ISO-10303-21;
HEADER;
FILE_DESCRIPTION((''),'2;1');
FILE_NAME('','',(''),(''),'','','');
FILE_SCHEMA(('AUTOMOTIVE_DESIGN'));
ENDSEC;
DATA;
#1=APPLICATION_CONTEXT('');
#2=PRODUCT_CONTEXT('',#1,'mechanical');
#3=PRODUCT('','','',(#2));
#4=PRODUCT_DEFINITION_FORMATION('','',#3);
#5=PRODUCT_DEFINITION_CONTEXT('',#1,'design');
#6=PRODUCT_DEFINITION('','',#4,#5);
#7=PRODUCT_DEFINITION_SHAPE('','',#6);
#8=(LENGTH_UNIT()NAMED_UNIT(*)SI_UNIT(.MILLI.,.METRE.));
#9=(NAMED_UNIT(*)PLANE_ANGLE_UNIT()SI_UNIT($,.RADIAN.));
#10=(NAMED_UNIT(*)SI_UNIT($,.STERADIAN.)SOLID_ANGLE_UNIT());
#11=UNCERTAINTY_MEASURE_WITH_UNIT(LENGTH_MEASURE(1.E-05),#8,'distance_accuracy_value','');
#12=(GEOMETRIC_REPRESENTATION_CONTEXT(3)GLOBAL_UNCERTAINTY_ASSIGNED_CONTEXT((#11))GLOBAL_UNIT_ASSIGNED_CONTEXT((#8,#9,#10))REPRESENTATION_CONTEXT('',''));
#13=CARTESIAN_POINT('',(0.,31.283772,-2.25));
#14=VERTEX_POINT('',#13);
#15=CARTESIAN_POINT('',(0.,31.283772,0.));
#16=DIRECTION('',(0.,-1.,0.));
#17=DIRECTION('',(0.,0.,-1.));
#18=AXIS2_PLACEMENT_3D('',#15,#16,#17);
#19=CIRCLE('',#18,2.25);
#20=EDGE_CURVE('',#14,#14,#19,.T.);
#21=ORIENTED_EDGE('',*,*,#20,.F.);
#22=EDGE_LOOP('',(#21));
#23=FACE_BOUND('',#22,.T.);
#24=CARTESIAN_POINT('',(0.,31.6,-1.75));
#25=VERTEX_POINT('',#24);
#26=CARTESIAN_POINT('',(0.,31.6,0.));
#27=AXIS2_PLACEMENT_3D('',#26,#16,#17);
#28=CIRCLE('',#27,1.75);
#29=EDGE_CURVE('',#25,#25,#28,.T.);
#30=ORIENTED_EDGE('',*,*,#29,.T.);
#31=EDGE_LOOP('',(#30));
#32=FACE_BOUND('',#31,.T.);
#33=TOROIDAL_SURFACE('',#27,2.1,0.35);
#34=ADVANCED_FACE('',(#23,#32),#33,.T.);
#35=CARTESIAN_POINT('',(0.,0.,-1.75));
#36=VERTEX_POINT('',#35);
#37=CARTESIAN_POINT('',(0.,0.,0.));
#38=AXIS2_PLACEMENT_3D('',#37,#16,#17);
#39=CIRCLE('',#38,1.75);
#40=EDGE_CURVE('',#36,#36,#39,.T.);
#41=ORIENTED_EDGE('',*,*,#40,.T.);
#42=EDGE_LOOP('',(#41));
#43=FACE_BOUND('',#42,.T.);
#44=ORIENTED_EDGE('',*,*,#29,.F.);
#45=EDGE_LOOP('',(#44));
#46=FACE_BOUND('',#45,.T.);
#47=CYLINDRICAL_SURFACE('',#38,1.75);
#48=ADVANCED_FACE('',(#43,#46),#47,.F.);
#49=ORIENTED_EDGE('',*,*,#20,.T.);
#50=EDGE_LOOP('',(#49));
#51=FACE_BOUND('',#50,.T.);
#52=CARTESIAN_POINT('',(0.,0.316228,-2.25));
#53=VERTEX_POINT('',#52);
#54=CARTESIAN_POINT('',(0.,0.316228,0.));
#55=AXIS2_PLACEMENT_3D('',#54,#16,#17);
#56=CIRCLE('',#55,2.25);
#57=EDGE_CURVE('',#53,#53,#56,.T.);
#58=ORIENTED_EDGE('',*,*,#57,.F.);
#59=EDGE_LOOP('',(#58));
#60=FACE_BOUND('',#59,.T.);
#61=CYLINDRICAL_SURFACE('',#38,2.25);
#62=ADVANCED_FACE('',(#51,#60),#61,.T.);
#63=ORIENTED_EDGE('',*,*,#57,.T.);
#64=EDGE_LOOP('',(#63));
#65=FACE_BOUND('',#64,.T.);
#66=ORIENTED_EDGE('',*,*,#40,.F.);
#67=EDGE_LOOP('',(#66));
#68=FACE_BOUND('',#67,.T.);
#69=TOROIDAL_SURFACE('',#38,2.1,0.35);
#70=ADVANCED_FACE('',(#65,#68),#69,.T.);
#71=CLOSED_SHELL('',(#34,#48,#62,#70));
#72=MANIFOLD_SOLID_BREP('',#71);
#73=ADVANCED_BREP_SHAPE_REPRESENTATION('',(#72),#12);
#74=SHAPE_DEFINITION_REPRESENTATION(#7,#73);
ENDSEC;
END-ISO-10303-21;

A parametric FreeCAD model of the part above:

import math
import FreeCAD as App
import Part
import Sketcher
from FreeCAD import Vector

doc = App.newDocument("Part")
body = doc.addObject("PartDesign::Body", "Body")

sketch1 = body.newObject("Sketcher::SketchObject", "Sketch")
sketch1.AttachmentSupport = (doc.getObject("XY_Plane"), [""])
sketch1.MapMode = "FlatFace"
sketch1.addGeometry(Part.LineSegment(Vector(2.25, 0.32, 0), Vector(2.25, 31.28, 0)), False)
sketch1.addGeometry(Part.ArcOfCircle(Part.Circle(Vector(2.1, 31.6, 0), Vector(0, 0, 1), 0.35), math.radians(-65), math.radians(0)), False)
sketch1.addGeometry(Part.ArcOfCircle(Part.Circle(Vector(2.1, 31.6, 0), Vector(0, 0, 1), 0.35), math.radians(0), math.radians(180)), False)
sketch1.addGeometry(Part.LineSegment(Vector(1.75, 31.6, 0), Vector(1.75, 0, 0)), False)
sketch1.addGeometry(Part.ArcOfCircle(Part.Circle(Vector(2.1, 0, 0), Vector(0, 0, 1), 0.35), math.radians(180), math.radians(360)), False)
sketch1.addGeometry(Part.ArcOfCircle(Part.Circle(Vector(2.1, 0, 0), Vector(0, 0, 1), 0.35), math.radians(0), math.radians(65)), False)
sketch1.addConstraint(Sketcher.Constraint("Coincident", 0, 2, 1, 1))
sketch1.addConstraint(Sketcher.Constraint("Tangent", 1, 2, 2, 1))
sketch1.addConstraint(Sketcher.Constraint("Tangent", 2, 2, 3, 1))
sketch1.addConstraint(Sketcher.Constraint("Tangent", 3, 2, 4, 1))
sketch1.addConstraint(Sketcher.Constraint("Tangent", 4, 2, 5, 1))
sketch1.addConstraint(Sketcher.Constraint("Coincident", 5, 2, 0, 1))
sketch1.addConstraint(Sketcher.Constraint("Vertical", 0))
sketch1.addConstraint(Sketcher.Constraint("Vertical", 3))
sketch1.addConstraint(Sketcher.Constraint("Equal", 1, 2))
sketch1.addConstraint(Sketcher.Constraint("Equal", 2, 4))
sketch1.addConstraint(Sketcher.Constraint("Equal", 4, 5))
sketch1.addConstraint(Sketcher.Constraint("PointOnObject", 4, 3, -1))
sketch1.addConstraint(Sketcher.Constraint("PointOnObject", 4, 2, -1))
sketch1.addConstraint(Sketcher.Constraint("Horizontal", 2, 3, 1, 2))
sketch1.addConstraint(Sketcher.Constraint("Radius", 1, 0.35))
sketch1.addConstraint(Sketcher.Constraint("DistanceY", 3, 2, 3, 1, 31.6))
sketch1.addConstraint(Sketcher.Constraint("DistanceX", -1, 1, 1, 3, 2.1))
sketch1.addConstraint(Sketcher.Constraint("DistanceX", 0, 2, 1, 2, 0.2))
revolution = body.newObject("PartDesign::Revolution", "Revolution")
revolution.Profile = sketch1
revolution.ReferenceAxis = (sketch1, ["V_Axis"])
revolution.Angle = 360

doc.recompute()
